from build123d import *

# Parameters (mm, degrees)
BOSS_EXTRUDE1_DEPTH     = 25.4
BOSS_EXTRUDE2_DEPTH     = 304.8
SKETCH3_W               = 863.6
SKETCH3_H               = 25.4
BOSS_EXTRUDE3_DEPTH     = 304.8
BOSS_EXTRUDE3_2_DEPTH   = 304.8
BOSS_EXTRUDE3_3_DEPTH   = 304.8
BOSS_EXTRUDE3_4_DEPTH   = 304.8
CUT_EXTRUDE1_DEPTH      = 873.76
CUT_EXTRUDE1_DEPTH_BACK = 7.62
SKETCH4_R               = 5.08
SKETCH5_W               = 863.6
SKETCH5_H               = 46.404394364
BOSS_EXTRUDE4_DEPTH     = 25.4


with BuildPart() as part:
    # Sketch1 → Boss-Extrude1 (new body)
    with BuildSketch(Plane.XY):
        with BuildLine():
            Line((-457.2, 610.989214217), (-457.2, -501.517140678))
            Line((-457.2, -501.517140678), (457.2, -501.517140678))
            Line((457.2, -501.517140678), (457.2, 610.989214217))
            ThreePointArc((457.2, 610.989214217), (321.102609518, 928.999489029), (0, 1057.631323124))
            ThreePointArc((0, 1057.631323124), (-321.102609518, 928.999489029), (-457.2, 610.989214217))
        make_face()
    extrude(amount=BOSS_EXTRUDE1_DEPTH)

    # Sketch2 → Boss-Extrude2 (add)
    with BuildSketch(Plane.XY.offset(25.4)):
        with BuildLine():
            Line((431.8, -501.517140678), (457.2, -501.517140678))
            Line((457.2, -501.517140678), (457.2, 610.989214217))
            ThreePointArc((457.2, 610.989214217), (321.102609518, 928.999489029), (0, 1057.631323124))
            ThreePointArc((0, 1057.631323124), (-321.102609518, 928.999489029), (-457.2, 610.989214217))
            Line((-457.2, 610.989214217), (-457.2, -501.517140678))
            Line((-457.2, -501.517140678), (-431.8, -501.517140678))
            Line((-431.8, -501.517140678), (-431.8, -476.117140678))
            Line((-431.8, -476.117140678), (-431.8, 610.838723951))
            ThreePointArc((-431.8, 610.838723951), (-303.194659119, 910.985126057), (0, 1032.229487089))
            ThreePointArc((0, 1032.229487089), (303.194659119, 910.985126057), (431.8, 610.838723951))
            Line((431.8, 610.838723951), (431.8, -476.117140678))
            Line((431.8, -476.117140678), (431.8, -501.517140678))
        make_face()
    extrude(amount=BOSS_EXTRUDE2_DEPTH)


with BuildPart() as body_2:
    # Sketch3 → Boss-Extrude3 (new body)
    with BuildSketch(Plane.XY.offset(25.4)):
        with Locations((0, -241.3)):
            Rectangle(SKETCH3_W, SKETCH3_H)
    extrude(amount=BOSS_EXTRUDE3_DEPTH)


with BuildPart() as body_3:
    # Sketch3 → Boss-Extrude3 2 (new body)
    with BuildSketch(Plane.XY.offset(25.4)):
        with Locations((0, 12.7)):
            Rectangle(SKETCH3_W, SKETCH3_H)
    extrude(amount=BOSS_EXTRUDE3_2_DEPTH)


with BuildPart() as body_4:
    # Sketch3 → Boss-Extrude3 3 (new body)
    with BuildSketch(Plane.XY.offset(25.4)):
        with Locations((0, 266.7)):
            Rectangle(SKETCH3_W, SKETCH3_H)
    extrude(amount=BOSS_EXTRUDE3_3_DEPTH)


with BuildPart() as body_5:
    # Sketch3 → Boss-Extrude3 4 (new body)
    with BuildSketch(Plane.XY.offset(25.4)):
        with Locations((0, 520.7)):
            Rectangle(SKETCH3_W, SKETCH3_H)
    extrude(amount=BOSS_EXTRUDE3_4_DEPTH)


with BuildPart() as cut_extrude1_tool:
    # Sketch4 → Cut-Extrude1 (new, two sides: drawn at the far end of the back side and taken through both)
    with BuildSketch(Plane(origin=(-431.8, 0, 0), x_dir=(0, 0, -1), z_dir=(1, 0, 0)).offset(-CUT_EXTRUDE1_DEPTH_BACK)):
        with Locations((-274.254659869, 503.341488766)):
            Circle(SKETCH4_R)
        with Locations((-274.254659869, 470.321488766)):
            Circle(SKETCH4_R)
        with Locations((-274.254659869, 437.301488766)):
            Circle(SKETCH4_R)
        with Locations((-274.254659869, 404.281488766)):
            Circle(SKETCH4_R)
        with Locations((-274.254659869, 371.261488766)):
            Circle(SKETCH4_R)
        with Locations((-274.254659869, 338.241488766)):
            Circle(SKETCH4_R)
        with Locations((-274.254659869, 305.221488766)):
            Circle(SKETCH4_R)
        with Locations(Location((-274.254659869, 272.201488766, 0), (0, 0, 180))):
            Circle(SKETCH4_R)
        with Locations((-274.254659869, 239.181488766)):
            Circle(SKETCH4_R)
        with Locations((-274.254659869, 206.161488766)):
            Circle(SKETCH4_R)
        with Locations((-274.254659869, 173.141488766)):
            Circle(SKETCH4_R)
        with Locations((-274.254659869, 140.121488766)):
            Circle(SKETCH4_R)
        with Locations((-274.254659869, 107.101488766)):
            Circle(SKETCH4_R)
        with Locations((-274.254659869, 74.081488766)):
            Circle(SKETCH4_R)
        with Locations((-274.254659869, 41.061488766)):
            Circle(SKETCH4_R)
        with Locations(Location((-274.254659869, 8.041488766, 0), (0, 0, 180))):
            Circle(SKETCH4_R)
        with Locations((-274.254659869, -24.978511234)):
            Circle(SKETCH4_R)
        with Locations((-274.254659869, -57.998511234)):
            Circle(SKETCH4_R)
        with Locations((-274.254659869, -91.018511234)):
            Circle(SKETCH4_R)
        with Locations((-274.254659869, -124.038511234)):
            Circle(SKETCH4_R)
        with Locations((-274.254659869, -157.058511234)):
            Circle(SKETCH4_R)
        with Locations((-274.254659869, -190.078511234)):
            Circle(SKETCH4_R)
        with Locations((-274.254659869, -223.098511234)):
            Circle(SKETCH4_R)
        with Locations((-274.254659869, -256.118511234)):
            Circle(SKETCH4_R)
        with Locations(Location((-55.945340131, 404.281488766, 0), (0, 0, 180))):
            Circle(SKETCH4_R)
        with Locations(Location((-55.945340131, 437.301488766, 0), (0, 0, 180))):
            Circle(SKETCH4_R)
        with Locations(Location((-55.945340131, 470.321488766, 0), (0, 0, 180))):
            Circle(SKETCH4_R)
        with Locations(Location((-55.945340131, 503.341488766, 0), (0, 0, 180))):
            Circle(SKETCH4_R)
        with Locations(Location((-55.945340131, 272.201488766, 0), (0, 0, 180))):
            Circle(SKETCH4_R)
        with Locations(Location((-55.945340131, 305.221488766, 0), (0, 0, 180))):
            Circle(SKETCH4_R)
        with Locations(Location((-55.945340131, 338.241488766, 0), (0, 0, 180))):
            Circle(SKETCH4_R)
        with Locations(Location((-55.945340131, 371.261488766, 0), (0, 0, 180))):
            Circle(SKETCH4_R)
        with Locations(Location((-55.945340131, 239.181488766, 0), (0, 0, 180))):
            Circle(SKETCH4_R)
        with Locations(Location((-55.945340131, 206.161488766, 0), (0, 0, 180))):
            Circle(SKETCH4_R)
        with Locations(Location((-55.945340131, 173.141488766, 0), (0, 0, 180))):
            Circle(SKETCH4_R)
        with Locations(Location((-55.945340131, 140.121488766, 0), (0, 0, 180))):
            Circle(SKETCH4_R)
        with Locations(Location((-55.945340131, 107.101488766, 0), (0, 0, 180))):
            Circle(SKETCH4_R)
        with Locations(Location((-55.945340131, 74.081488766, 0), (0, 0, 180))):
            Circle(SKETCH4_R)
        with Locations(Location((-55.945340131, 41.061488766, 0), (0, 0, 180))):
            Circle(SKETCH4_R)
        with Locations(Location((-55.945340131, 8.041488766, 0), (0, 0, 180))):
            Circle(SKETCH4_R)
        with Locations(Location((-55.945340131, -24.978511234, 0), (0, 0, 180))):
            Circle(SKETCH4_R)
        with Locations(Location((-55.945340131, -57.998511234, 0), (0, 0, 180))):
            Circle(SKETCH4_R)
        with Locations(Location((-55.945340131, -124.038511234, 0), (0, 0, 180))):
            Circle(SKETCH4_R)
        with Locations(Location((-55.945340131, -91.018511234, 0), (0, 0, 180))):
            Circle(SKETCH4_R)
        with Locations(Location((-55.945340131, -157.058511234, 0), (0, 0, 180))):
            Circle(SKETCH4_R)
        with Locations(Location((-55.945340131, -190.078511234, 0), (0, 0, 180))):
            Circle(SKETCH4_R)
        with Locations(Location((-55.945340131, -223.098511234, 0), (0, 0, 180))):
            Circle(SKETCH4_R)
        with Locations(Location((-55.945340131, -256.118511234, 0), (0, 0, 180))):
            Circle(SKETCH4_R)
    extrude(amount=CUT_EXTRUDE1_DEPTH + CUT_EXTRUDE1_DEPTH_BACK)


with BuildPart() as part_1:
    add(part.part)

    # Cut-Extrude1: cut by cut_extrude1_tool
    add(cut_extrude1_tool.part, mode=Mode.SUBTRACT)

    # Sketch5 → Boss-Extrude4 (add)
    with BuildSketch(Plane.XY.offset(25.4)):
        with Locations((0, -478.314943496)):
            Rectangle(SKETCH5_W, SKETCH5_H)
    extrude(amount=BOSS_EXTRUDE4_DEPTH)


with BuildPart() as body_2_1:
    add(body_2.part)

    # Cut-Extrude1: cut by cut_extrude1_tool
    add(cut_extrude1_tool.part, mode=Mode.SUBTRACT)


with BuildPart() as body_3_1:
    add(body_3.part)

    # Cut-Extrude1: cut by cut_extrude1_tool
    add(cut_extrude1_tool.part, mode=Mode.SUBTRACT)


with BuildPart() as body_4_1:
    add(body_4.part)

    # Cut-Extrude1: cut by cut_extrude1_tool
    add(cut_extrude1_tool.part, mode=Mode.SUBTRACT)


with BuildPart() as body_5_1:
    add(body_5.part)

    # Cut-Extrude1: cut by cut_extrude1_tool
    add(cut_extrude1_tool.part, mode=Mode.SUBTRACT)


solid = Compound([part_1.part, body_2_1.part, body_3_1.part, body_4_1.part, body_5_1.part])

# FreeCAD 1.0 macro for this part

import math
import FreeCAD as App
import Part
import Sketcher
from FreeCAD import Vector
Q = App.Units.Quantity


def add_polygon(sketch, points):
    """Adds a closed chain of lines whose ends are joined by coincident constraints."""
    first, n = sketch.GeometryCount, len(points)
    for a, b in zip(points, points[1:] + points[:1]):
        sketch.addGeometry(Part.LineSegment(App.Vector(*a, 0), App.Vector(*b, 0)), False)
    for i in range(n):
        sketch.addConstraint(Sketcher.Constraint("Coincident", first + i, 2, first + (i + 1) % n, 1))

doc = App.newDocument("Part")
body = doc.addObject("PartDesign::Body", "Body")

sketch1 = body.newObject("Sketcher::SketchObject", "Sketch")
sketch1.AttachmentSupport = (doc.getObject("XY_Plane"), [""])
sketch1.MapMode = "FlatFace"
sketch1.addGeometry(Part.LineSegment(Vector(-457, 611, 0), Vector(-457, -502, 0)), False)
sketch1.addGeometry(Part.LineSegment(Vector(-457, -502, 0), Vector(457, -502, 0)), False)
sketch1.addGeometry(Part.LineSegment(Vector(457, -502, 0), Vector(457, 611, 0)), False)
sketch1.addGeometry(Part.ArcOfCircle(Part.Circle(Vector(5, 606, 0), Vector(0, 0, 1), 452), math.radians(1), math.radians(91)), False)
sketch1.addGeometry(Part.ArcOfCircle(Part.Circle(Vector(-5, 606, 0), Vector(0, 0, 1), 452), math.radians(89), math.radians(179)), False)
sketch1.addConstraint(Sketcher.Constraint("Coincident", 0, 2, 1, 1))
sketch1.addConstraint(Sketcher.Constraint("Coincident", 1, 2, 2, 1))
sketch1.addConstraint(Sketcher.Constraint("Coincident", 2, 2, 3, 1))
sketch1.addConstraint(Sketcher.Constraint("Coincident", 3, 2, 4, 1))
sketch1.addConstraint(Sketcher.Constraint("Coincident", 4, 2, 0, 1))
sketch1.addConstraint(Sketcher.Constraint("Vertical", 0))
sketch1.addConstraint(Sketcher.Constraint("Horizontal", 1))
sketch1.addConstraint(Sketcher.Constraint("Vertical", 2))
sketch1.addConstraint(Sketcher.Constraint("Equal", 3, 4))
sketch1.addConstraint(Sketcher.Constraint("Symmetric", 3, 3, 4, 3, -2))
sketch1.addConstraint(Sketcher.Constraint("Horizontal", 2, 2, 4, 2))
sketch1.addConstraint(Sketcher.Constraint("DistanceX", 1, 1, 1, 2, Q("36 in")))
sketch1.addConstraint(Sketcher.Constraint("Radius", 3, 451.951885))
sketch1.addConstraint(Sketcher.Constraint("DistanceY", 0, 2, 0, 1, 1112.506355))
sketch1.addConstraint(Sketcher.Constraint("DistanceY", -1, 1, 3, 3, 605.710269))
sketch1.addConstraint(Sketcher.Constraint("DistanceY", 0, 2, -1, 1, 501.517141))
pad1 = body.newObject("PartDesign::Pad", "Pad")
pad1.Profile = sketch1
pad1.Length = Q("1 in")

sketch2 = body.newObject("Sketcher::SketchObject", "Sketch001")
sketch2.AttachmentSupport = (doc.getObject("XY_Plane"), [""])
sketch2.MapMode = "FlatFace"
sketch2.AttachmentOffset = App.Placement(Vector(0, 0, 1 * 25.4), App.Rotation())
sketch2.addGeometry(Part.LineSegment(Vector(432, -502, 0), Vector(457, -502, 0)), False)
sketch2.addGeometry(Part.LineSegment(Vector(457, -502, 0), Vector(457, 611, 0)), False)
sketch2.addGeometry(Part.ArcOfCircle(Part.Circle(Vector(5, 606, 0), Vector(0, 0, 1), 452), math.radians(1), math.radians(91)), False)
sketch2.addGeometry(Part.ArcOfCircle(Part.Circle(Vector(-5, 606, 0), Vector(0, 0, 1), 452), math.radians(89), math.radians(179)), False)
sketch2.addGeometry(Part.LineSegment(Vector(-457, 611, 0), Vector(-457, -502, 0)), False)
sketch2.addGeometry(Part.LineSegment(Vector(-457, -502, 0), Vector(-432, -502, 0)), False)
sketch2.addGeometry(Part.LineSegment(Vector(-432, -502, 0), Vector(-432, 611, 0)), False)
sketch2.addGeometry(Part.ArcOfCircle(Part.Circle(Vector(-5, 606, 0), Vector(0, 0, 1), 427), math.radians(89), math.radians(179)), False)
sketch2.addGeometry(Part.ArcOfCircle(Part.Circle(Vector(5, 606, 0), Vector(0, 0, 1), 427), math.radians(1), math.radians(91)), False)
sketch2.addGeometry(Part.LineSegment(Vector(432, 611, 0), Vector(432, -502, 0)), False)
sketch2.addConstraint(Sketcher.Constraint("Coincident", 0, 2, 1, 1))
sketch2.addConstraint(Sketcher.Constraint("Coincident", 1, 2, 2, 1))
sketch2.addConstraint(Sketcher.Constraint("Coincident", 2, 2, 3, 1))
sketch2.addConstraint(Sketcher.Constraint("Coincident", 3, 2, 4, 1))
sketch2.addConstraint(Sketcher.Constraint("Coincident", 4, 2, 5, 1))
sketch2.addConstraint(Sketcher.Constraint("Coincident", 5, 2, 6, 1))
sketch2.addConstraint(Sketcher.Constraint("Coincident", 6, 2, 7, 2))
sketch2.addConstraint(Sketcher.Constraint("Coincident", 7, 1, 8, 2))
sketch2.addConstraint(Sketcher.Constraint("Coincident", 8, 1, 9, 1))
sketch2.addConstraint(Sketcher.Constraint("Coincident", 9, 2, 0, 1))
sketch2.addConstraint(Sketcher.Constraint("Horizontal", 0))
sketch2.addConstraint(Sketcher.Constraint("Vertical", 1))
sketch2.addConstraint(Sketcher.Constraint("Vertical", 4))
sketch2.addConstraint(Sketcher.Constraint("Horizontal", 5))
sketch2.addConstraint(Sketcher.Constraint("Vertical", 6))
sketch2.addConstraint(Sketcher.Constraint("Vertical", 9))
sketch2.addConstraint(Sketcher.Constraint("Coincident", 7, 3, 3, 3))
sketch2.addConstraint(Sketcher.Constraint("Coincident", 8, 3, 2, 3))
sketch2.addConstraint(Sketcher.Constraint("Equal", 2, 3))
sketch2.addConstraint(Sketcher.Constraint("Equal", 7, 8))
sketch2.addConstraint(Sketcher.Constraint("Symmetric", 2, 3, 3, 3, -2))
sketch2.addConstraint(Sketcher.Constraint("Symmetric", 0, 2, 4, 2, -2))
sketch2.addConstraint(Sketcher.Constraint("Horizontal", 6, 2, 8, 1))
sketch2.addConstraint(Sketcher.Constraint("DistanceX", 0, 1, 0, 2, Q("1 in")))
sketch2.addConstraint(Sketcher.Constraint("DistanceX", -1, 1, 0, 2, Q("18 in")))
sketch2.addConstraint(Sketcher.Constraint("Radius", 2, 451.951885))
sketch2.addConstraint(Sketcher.Constraint("Radius", 7, 426.551885))
sketch2.addConstraint(Sketcher.Constraint("DistanceY", 1, 1, 1, 2, 1112.506355))
sketch2.addConstraint(Sketcher.Constraint("DistanceY", 6, 1, 6, 2, 1112.355865))
sketch2.addConstraint(Sketcher.Constraint("DistanceY", -1, 1, 2, 3, 605.710269))
pad2 = body.newObject("PartDesign::Pad", "Pad001")
pad2.Profile = sketch2
pad2.Length = Q("12 in")
body2 = doc.addObject("PartDesign::Body", "Body001")

sketch3 = body2.newObject("Sketcher::SketchObject", "Sketch002")
sketch3.AttachmentSupport = (doc.getObject("XY_Plane001"), [""])
sketch3.MapMode = "FlatFace"
sketch3.AttachmentOffset = App.Placement(Vector(0, 0, 1 * 25.4), App.Rotation())
add_polygon(sketch3, [(-432, -229), (-432, -254), (432, -254), (432, -229)])
sketch3.addConstraint(Sketcher.Constraint("Vertical", 0))
sketch3.addConstraint(Sketcher.Constraint("Horizontal", 1))
sketch3.addConstraint(Sketcher.Constraint("Vertical", 2))
sketch3.addConstraint(Sketcher.Constraint("Horizontal", 3))
sketch3.addConstraint(Sketcher.Constraint("DistanceX", 1, 1, 1, 2, Q("34 in")))
sketch3.addConstraint(Sketcher.Constraint("DistanceY", 0, 2, 0, 1, Q("1 in")))
sketch3.addConstraint(Sketcher.Constraint("DistanceX", 0, 2, -1, 1, Q("17 in")))
sketch3.addConstraint(Sketcher.Constraint("DistanceY", 0, 2, -1, 1, Q("10 in")))
pad3 = body2.newObject("PartDesign::Pad", "Pad002")
pad3.Profile = sketch3
pad3.Length = Q("12 in")
body3 = doc.addObject("PartDesign::Body", "Body002")

sketch4 = body3.newObject("Sketcher::SketchObject", "Sketch003")
sketch4.AttachmentSupport = (doc.getObject("XY_Plane002"), [""])
sketch4.MapMode = "FlatFace"
sketch4.AttachmentOffset = App.Placement(Vector(0, 0, 1 * 25.4), App.Rotation())
add_polygon(sketch4, [(-432, 25), (-432, 0), (432, 0), (432, 25)])
sketch4.addConstraint(Sketcher.Constraint("Vertical", 0))
sketch4.addConstraint(Sketcher.Constraint("Horizontal", 1))
sketch4.addConstraint(Sketcher.Constraint("Vertical", 2))
sketch4.addConstraint(Sketcher.Constraint("Horizontal", 3))
sketch4.addConstraint(Sketcher.Constraint("Symmetric", 0, 2, 1, 2, -1, 1))
sketch4.addConstraint(Sketcher.Constraint("DistanceX", 1, 1, 1, 2, Q("34 in")))
sketch4.addConstraint(Sketcher.Constraint("DistanceY", 0, 2, 0, 1, Q("1 in")))
pad4 = body3.newObject("PartDesign::Pad", "Pad003")
pad4.Profile = sketch4
pad4.Length = Q("12 in")
body4 = doc.addObject("PartDesign::Body", "Body003")

sketch5 = body4.newObject("Sketcher::SketchObject", "Sketch004")
sketch5.AttachmentSupport = (doc.getObject("XY_Plane003"), [""])
sketch5.MapMode = "FlatFace"
sketch5.AttachmentOffset = App.Placement(Vector(0, 0, 1 * 25.4), App.Rotation())
add_polygon(sketch5, [(-432, 279), (-432, 254), (432, 254), (432, 279)])
sketch5.addConstraint(Sketcher.Constraint("Vertical", 0))
sketch5.addConstraint(Sketcher.Constraint("Horizontal", 1))
sketch5.addConstraint(Sketcher.Constraint("Vertical", 2))
sketch5.addConstraint(Sketcher.Constraint("Horizontal", 3))
sketch5.addConstraint(Sketcher.Constraint("DistanceX", 1, 1, 1, 2, Q("34 in")))
sketch5.addConstraint(Sketcher.Constraint("DistanceY", 0, 2, 0, 1, Q("1 in")))
sketch5.addConstraint(Sketcher.Constraint("DistanceX", 0, 2, -1, 1, Q("17 in")))
sketch5.addConstraint(Sketcher.Constraint("DistanceY", -1, 1, 0, 2, Q("10 in")))
pad5 = body4.newObject("PartDesign::Pad", "Pad004")
pad5.Profile = sketch5
pad5.Length = Q("12 in")
body5 = doc.addObject("PartDesign::Body", "Body004")

sketch6 = body5.newObject("Sketcher::SketchObject", "Sketch005")
sketch6.AttachmentSupport = (doc.getObject("XY_Plane004"), [""])
sketch6.MapMode = "FlatFace"
sketch6.AttachmentOffset = App.Placement(Vector(0, 0, 1 * 25.4), App.Rotation())
add_polygon(sketch6, [(-432, 533), (-432, 508), (432, 508), (432, 533)])
sketch6.addConstraint(Sketcher.Constraint("Vertical", 0))
sketch6.addConstraint(Sketcher.Constraint("Horizontal", 1))
sketch6.addConstraint(Sketcher.Constraint("Vertical", 2))
sketch6.addConstraint(Sketcher.Constraint("Horizontal", 3))
sketch6.addConstraint(Sketcher.Constraint("DistanceX", 1, 1, 1, 2, Q("34 in")))
sketch6.addConstraint(Sketcher.Constraint("DistanceY", 0, 2, 0, 1, Q("1 in")))
sketch6.addConstraint(Sketcher.Constraint("DistanceX", 0, 2, -1, 1, Q("17 in")))
sketch6.addConstraint(Sketcher.Constraint("DistanceY", -1, 1, 0, 2, Q("20 in")))
pad6 = body5.newObject("PartDesign::Pad", "Pad005")
pad6.Profile = sketch6
pad6.Length = Q("12 in")
body6 = doc.addObject("PartDesign::Body", "Body005")
body6.AllowCompound = True

sketch7 = body6.newObject("Sketcher::SketchObject", "Sketch006")
sketch7.AttachmentSupport = (doc.getObject("YZ_Plane005"), [""])
sketch7.MapMode = "FlatFace"
sketch7.AttachmentOffset = App.Placement(Vector(0, 0, -17 * 25.4), App.Rotation())
sketch7.addGeometry(Part.Circle(Vector(503, 274, 0), Vector(0, 0, 1), 5), False)
sketch7.addGeometry(Part.Circle(Vector(470, 274, 0), Vector(0, 0, 1), 5), False)
sketch7.addGeometry(Part.Circle(Vector(437, 274, 0), Vector(0, 0, 1), 5), False)
sketch7.addGeometry(Part.Circle(Vector(404, 274, 0), Vector(0, 0, 1), 5), False)
sketch7.addGeometry(Part.Circle(Vector(371, 274, 0), Vector(0, 0, 1), 5), False)
sketch7.addGeometry(Part.Circle(Vector(338, 274, 0), Vector(0, 0, 1), 5), False)
sketch7.addGeometry(Part.Circle(Vector(305, 274, 0), Vector(0, 0, 1), 5), False)
sketch7.addGeometry(Part.Circle(Vector(272, 274, 0), Vector(0, 0, 1), 5), False)
sketch7.addGeometry(Part.Circle(Vector(239, 274, 0), Vector(0, 0, 1), 5), False)
sketch7.addGeometry(Part.Circle(Vector(206, 274, 0), Vector(0, 0, 1), 5), False)
sketch7.addGeometry(Part.Circle(Vector(173, 274, 0), Vector(0, 0, 1), 5), False)
sketch7.addGeometry(Part.Circle(Vector(140, 274, 0), Vector(0, 0, 1), 5), False)
sketch7.addGeometry(Part.Circle(Vector(107, 274, 0), Vector(0, 0, 1), 5), False)
sketch7.addGeometry(Part.Circle(Vector(74, 274, 0), Vector(0, 0, 1), 5), False)
sketch7.addGeometry(Part.Circle(Vector(41, 274, 0), Vector(0, 0, 1), 5), False)
sketch7.addGeometry(Part.Circle(Vector(8, 274, 0), Vector(0, 0, 1), 5), False)
sketch7.addGeometry(Part.Circle(Vector(-25, 274, 0), Vector(0, 0, 1), 5), False)
sketch7.addGeometry(Part.Circle(Vector(-58, 274, 0), Vector(0, 0, 1), 5), False)
sketch7.addGeometry(Part.Circle(Vector(-91, 274, 0), Vector(0, 0, 1), 5), False)
sketch7.addGeometry(Part.Circle(Vector(-124, 274, 0), Vector(0, 0, 1), 5), False)
sketch7.addGeometry(Part.Circle(Vector(-157, 274, 0), Vector(0, 0, 1), 5), False)
sketch7.addGeometry(Part.Circle(Vector(-190, 274, 0), Vector(0, 0, 1), 5), False)
sketch7.addGeometry(Part.Circle(Vector(-223, 274, 0), Vector(0, 0, 1), 5), False)
sketch7.addGeometry(Part.Circle(Vector(-256, 274, 0), Vector(0, 0, 1), 5), False)
sketch7.addGeometry(Part.Circle(Vector(404, 56, 0), Vector(0, 0, 1), 5), False)
sketch7.addGeometry(Part.Circle(Vector(437, 56, 0), Vector(0, 0, 1), 5), False)
sketch7.addGeometry(Part.Circle(Vector(470, 56, 0), Vector(0, 0, 1), 5), False)
sketch7.addGeometry(Part.Circle(Vector(503, 56, 0), Vector(0, 0, 1), 5), False)
sketch7.addGeometry(Part.Circle(Vector(272, 56, 0), Vector(0, 0, 1), 5), False)
sketch7.addGeometry(Part.Circle(Vector(305, 56, 0), Vector(0, 0, 1), 5), False)
sketch7.addGeometry(Part.Circle(Vector(338, 56, 0), Vector(0, 0, 1), 5), False)
sketch7.addGeometry(Part.Circle(Vector(371, 56, 0), Vector(0, 0, 1), 5), False)
sketch7.addGeometry(Part.Circle(Vector(239, 56, 0), Vector(0, 0, 1), 5), False)
sketch7.addGeometry(Part.Circle(Vector(206, 56, 0), Vector(0, 0, 1), 5), False)
sketch7.addGeometry(Part.Circle(Vector(173, 56, 0), Vector(0, 0, 1), 5), False)
sketch7.addGeometry(Part.Circle(Vector(140, 56, 0), Vector(0, 0, 1), 5), False)
sketch7.addGeometry(Part.Circle(Vector(107, 56, 0), Vector(0, 0, 1), 5), False)
sketch7.addGeometry(Part.Circle(Vector(74, 56, 0), Vector(0, 0, 1), 5), False)
sketch7.addGeometry(Part.Circle(Vector(41, 56, 0), Vector(0, 0, 1), 5), False)
sketch7.addGeometry(Part.Circle(Vector(8, 56, 0), Vector(0, 0, 1), 5), False)
sketch7.addGeometry(Part.Circle(Vector(-25, 56, 0), Vector(0, 0, 1), 5), False)
sketch7.addGeometry(Part.Circle(Vector(-58, 56, 0), Vector(0, 0, 1), 5), False)
sketch7.addGeometry(Part.Circle(Vector(-124, 56, 0), Vector(0, 0, 1), 5), False)
sketch7.addGeometry(Part.Circle(Vector(-91, 56, 0), Vector(0, 0, 1), 5), False)
sketch7.addGeometry(Part.Circle(Vector(-157, 56, 0), Vector(0, 0, 1), 5), False)
sketch7.addGeometry(Part.Circle(Vector(-190, 56, 0), Vector(0, 0, 1), 5), False)
sketch7.addGeometry(Part.Circle(Vector(-223, 56, 0), Vector(0, 0, 1), 5), False)
sketch7.addGeometry(Part.Circle(Vector(-256, 56, 0), Vector(0, 0, 1), 5), False)
sketch7.addConstraint(Sketcher.Constraint("Equal", 0, 1))
sketch7.addConstraint(Sketcher.Constraint("Equal", 1, 2))
sketch7.addConstraint(Sketcher.Constraint("Equal", 2, 3))
sketch7.addConstraint(Sketcher.Constraint("Equal", 3, 4))
sketch7.addConstraint(Sketcher.Constraint("Equal", 4, 5))
sketch7.addConstraint(Sketcher.Constraint("Equal", 5, 6))
sketch7.addConstraint(Sketcher.Constraint("Equal", 6, 7))
sketch7.addConstraint(Sketcher.Constraint("Equal", 7, 8))
sketch7.addConstraint(Sketcher.Constraint("Equal", 8, 9))
sketch7.addConstraint(Sketcher.Constraint("Equal", 9, 10))
sketch7.addConstraint(Sketcher.Constraint("Equal", 10, 11))
sketch7.addConstraint(Sketcher.Constraint("Equal", 11, 12))
sketch7.addConstraint(Sketcher.Constraint("Equal", 12, 13))
sketch7.addConstraint(Sketcher.Constraint("Equal", 13, 14))
sketch7.addConstraint(Sketcher.Constraint("Equal", 14, 15))
sketch7.addConstraint(Sketcher.Constraint("Equal", 15, 16))
sketch7.addConstraint(Sketcher.Constraint("Equal", 16, 17))
sketch7.addConstraint(Sketcher.Constraint("Equal", 17, 18))
sketch7.addConstraint(Sketcher.Constraint("Equal", 18, 19))
sketch7.addConstraint(Sketcher.Constraint("Equal", 19, 20))
sketch7.addConstraint(Sketcher.Constraint("Equal", 20, 21))
sketch7.addConstraint(Sketcher.Constraint("Equal", 21, 22))
sketch7.addConstraint(Sketcher.Constraint("Equal", 22, 23))
sketch7.addConstraint(Sketcher.Constraint("Equal", 23, 24))
sketch7.addConstraint(Sketcher.Constraint("Equal", 24, 25))
sketch7.addConstraint(Sketcher.Constraint("Equal", 25, 26))
sketch7.addConstraint(Sketcher.Constraint("Equal", 26, 27))
sketch7.addConstraint(Sketcher.Constraint("Equal", 27, 28))
sketch7.addConstraint(Sketcher.Constraint("Equal", 28, 29))
sketch7.addConstraint(Sketcher.Constraint("Equal", 29, 30))
sketch7.addConstraint(Sketcher.Constraint("Equal", 30, 31))
sketch7.addConstraint(Sketcher.Constraint("Equal", 31, 32))
sketch7.addConstraint(Sketcher.Constraint("Equal", 32, 33))
sketch7.addConstraint(Sketcher.Constraint("Equal", 33, 34))
sketch7.addConstraint(Sketcher.Constraint("Equal", 34, 35))
sketch7.addConstraint(Sketcher.Constraint("Equal", 35, 36))
sketch7.addConstraint(Sketcher.Constraint("Equal", 36, 37))
sketch7.addConstraint(Sketcher.Constraint("Equal", 37, 38))
sketch7.addConstraint(Sketcher.Constraint("Equal", 38, 39))
sketch7.addConstraint(Sketcher.Constraint("Equal", 39, 40))
sketch7.addConstraint(Sketcher.Constraint("Equal", 40, 41))
sketch7.addConstraint(Sketcher.Constraint("Equal", 41, 42))
sketch7.addConstraint(Sketcher.Constraint("Equal", 42, 43))
sketch7.addConstraint(Sketcher.Constraint("Equal", 43, 44))
sketch7.addConstraint(Sketcher.Constraint("Equal", 44, 45))
sketch7.addConstraint(Sketcher.Constraint("Equal", 45, 46))
sketch7.addConstraint(Sketcher.Constraint("Equal", 46, 47))
sketch7.addConstraint(Sketcher.Constraint("Horizontal", 0, 3, 1, 3))
sketch7.addConstraint(Sketcher.Constraint("Horizontal", 1, 3, 2, 3))
sketch7.addConstraint(Sketcher.Constraint("Horizontal", 2, 3, 3, 3))
sketch7.addConstraint(Sketcher.Constraint("Horizontal", 3, 3, 4, 3))
sketch7.addConstraint(Sketcher.Constraint("Horizontal", 4, 3, 5, 3))
sketch7.addConstraint(Sketcher.Constraint("Horizontal", 5, 3, 6, 3))
sketch7.addConstraint(Sketcher.Constraint("Horizontal", 6, 3, 7, 3))
sketch7.addConstraint(Sketcher.Constraint("Horizontal", 7, 3, 8, 3))
sketch7.addConstraint(Sketcher.Constraint("Horizontal", 8, 3, 9, 3))
sketch7.addConstraint(Sketcher.Constraint("Horizontal", 9, 3, 10, 3))
sketch7.addConstraint(Sketcher.Constraint("Horizontal", 10, 3, 11, 3))
sketch7.addConstraint(Sketcher.Constraint("Horizontal", 11, 3, 12, 3))
sketch7.addConstraint(Sketcher.Constraint("Horizontal", 12, 3, 13, 3))
sketch7.addConstraint(Sketcher.Constraint("Horizontal", 13, 3, 14, 3))
sketch7.addConstraint(Sketcher.Constraint("Horizontal", 14, 3, 15, 3))
sketch7.addConstraint(Sketcher.Constraint("Horizontal", 15, 3, 16, 3))
sketch7.addConstraint(Sketcher.Constraint("Horizontal", 16, 3, 17, 3))
sketch7.addConstraint(Sketcher.Constraint("Horizontal", 17, 3, 18, 3))
sketch7.addConstraint(Sketcher.Constraint("Horizontal", 18, 3, 19, 3))
sketch7.addConstraint(Sketcher.Constraint("Horizontal", 19, 3, 20, 3))
sketch7.addConstraint(Sketcher.Constraint("Horizontal", 20, 3, 21, 3))
sketch7.addConstraint(Sketcher.Constraint("Horizontal", 21, 3, 22, 3))
sketch7.addConstraint(Sketcher.Constraint("Horizontal", 22, 3, 23, 3))
sketch7.addConstraint(Sketcher.Constraint("Horizontal", 24, 3, 25, 3))
sketch7.addConstraint(Sketcher.Constraint("Horizontal", 25, 3, 26, 3))
sketch7.addConstraint(Sketcher.Constraint("Horizontal", 26, 3, 27, 3))
sketch7.addConstraint(Sketcher.Constraint("Horizontal", 27, 3, 28, 3))
sketch7.addConstraint(Sketcher.Constraint("Horizontal", 28, 3, 29, 3))
sketch7.addConstraint(Sketcher.Constraint("Horizontal", 29, 3, 30, 3))
sketch7.addConstraint(Sketcher.Constraint("Horizontal", 30, 3, 31, 3))
sketch7.addConstraint(Sketcher.Constraint("Horizontal", 31, 3, 32, 3))
sketch7.addConstraint(Sketcher.Constraint("Horizontal", 32, 3, 33, 3))
sketch7.addConstraint(Sketcher.Constraint("Horizontal", 33, 3, 34, 3))
sketch7.addConstraint(Sketcher.Constraint("Horizontal", 34, 3, 35, 3))
sketch7.addConstraint(Sketcher.Constraint("Horizontal", 35, 3, 36, 3))
sketch7.addConstraint(Sketcher.Constraint("Horizontal", 36, 3, 37, 3))
sketch7.addConstraint(Sketcher.Constraint("Horizontal", 37, 3, 38, 3))
sketch7.addConstraint(Sketcher.Constraint("Horizontal", 38, 3, 39, 3))
sketch7.addConstraint(Sketcher.Constraint("Horizontal", 39, 3, 40, 3))
sketch7.addConstraint(Sketcher.Constraint("Horizontal", 40, 3, 41, 3))
sketch7.addConstraint(Sketcher.Constraint("Horizontal", 41, 3, 42, 3))
sketch7.addConstraint(Sketcher.Constraint("Horizontal", 42, 3, 43, 3))
sketch7.addConstraint(Sketcher.Constraint("Horizontal", 43, 3, 44, 3))
sketch7.addConstraint(Sketcher.Constraint("Horizontal", 44, 3, 45, 3))
sketch7.addConstraint(Sketcher.Constraint("Horizontal", 45, 3, 46, 3))
sketch7.addConstraint(Sketcher.Constraint("Horizontal", 46, 3, 47, 3))
sketch7.addConstraint(Sketcher.Constraint("Vertical", 3, 3, 24, 3))
sketch7.addConstraint(Sketcher.Constraint("Vertical", 2, 3, 25, 3))
sketch7.addConstraint(Sketcher.Constraint("Vertical", 1, 3, 26, 3))
sketch7.addConstraint(Sketcher.Constraint("Vertical", 0, 3, 27, 3))
sketch7.addConstraint(Sketcher.Constraint("Vertical", 7, 3, 28, 3))
sketch7.addConstraint(Sketcher.Constraint("Vertical", 6, 3, 29, 3))
sketch7.addConstraint(Sketcher.Constraint("Vertical", 5, 3, 30, 3))
sketch7.addConstraint(Sketcher.Constraint("Vertical", 4, 3, 31, 3))
sketch7.addConstraint(Sketcher.Constraint("Vertical", 8, 3, 32, 3))
sketch7.addConstraint(Sketcher.Constraint("Vertical", 9, 3, 33, 3))
sketch7.addConstraint(Sketcher.Constraint("Vertical", 10, 3, 34, 3))
sketch7.addConstraint(Sketcher.Constraint("Vertical", 11, 3, 35, 3))
sketch7.addConstraint(Sketcher.Constraint("Vertical", 12, 3, 36, 3))
sketch7.addConstraint(Sketcher.Constraint("Vertical", 13, 3, 37, 3))
sketch7.addConstraint(Sketcher.Constraint("Vertical", 14, 3, 38, 3))
sketch7.addConstraint(Sketcher.Constraint("Vertical", 15, 3, 39, 3))
sketch7.addConstraint(Sketcher.Constraint("Vertical", 16, 3, 40, 3))
sketch7.addConstraint(Sketcher.Constraint("Vertical", 17, 3, 41, 3))
sketch7.addConstraint(Sketcher.Constraint("Vertical", 19, 3, 42, 3))
sketch7.addConstraint(Sketcher.Constraint("Vertical", 18, 3, 43, 3))
sketch7.addConstraint(Sketcher.Constraint("Vertical", 20, 3, 44, 3))
sketch7.addConstraint(Sketcher.Constraint("Vertical", 21, 3, 45, 3))
sketch7.addConstraint(Sketcher.Constraint("Vertical", 22, 3, 46, 3))
sketch7.addConstraint(Sketcher.Constraint("Vertical", 23, 3, 47, 3))
sketch7.addConstraint(Sketcher.Constraint("Diameter", 0, Q("0.4 in")))
sketch7.addConstraint(Sketcher.Constraint("DistanceX", 1, 3, 0, 3, Q("1.3 in")))
sketch7.addConstraint(Sketcher.Constraint("DistanceX", 2, 3, 1, 3, Q("1.3 in")))
sketch7.addConstraint(Sketcher.Constraint("DistanceX", 3, 3, 2, 3, Q("1.3 in")))
sketch7.addConstraint(Sketcher.Constraint("DistanceX", 4, 3, 3, 3, Q("1.3 in")))
sketch7.addConstraint(Sketcher.Constraint("DistanceX", 5, 3, 4, 3, Q("1.3 in")))
sketch7.addConstraint(Sketcher.Constraint("DistanceX", 6, 3, 5, 3, Q("1.3 in")))
sketch7.addConstraint(Sketcher.Constraint("DistanceX", 7, 3, 6, 3, Q("1.3 in")))
sketch7.addConstraint(Sketcher.Constraint("DistanceX", 8, 3, 7, 3, Q("1.3 in")))
sketch7.addConstraint(Sketcher.Constraint("DistanceX", 9, 3, 8, 3, Q("1.3 in")))
sketch7.addConstraint(Sketcher.Constraint("DistanceX", 10, 3, 9, 3, Q("1.3 in")))
sketch7.addConstraint(Sketcher.Constraint("DistanceX", 11, 3, 10, 3, Q("1.3 in")))
sketch7.addConstraint(Sketcher.Constraint("DistanceX", 12, 3, 11, 3, Q("1.3 in")))
sketch7.addConstraint(Sketcher.Constraint("DistanceX", 13, 3, 12, 3, Q("1.3 in")))
sketch7.addConstraint(Sketcher.Constraint("DistanceX", 14, 3, 13, 3, Q("1.3 in")))
sketch7.addConstraint(Sketcher.Constraint("DistanceX", 15, 3, 14, 3, Q("1.3 in")))
sketch7.addConstraint(Sketcher.Constraint("DistanceX", 16, 3, 15, 3, Q("1.3 in")))
sketch7.addConstraint(Sketcher.Constraint("DistanceX", 17, 3, 16, 3, Q("1.3 in")))
sketch7.addConstraint(Sketcher.Constraint("DistanceX", 18, 3, 17, 3, Q("1.3 in")))
sketch7.addConstraint(Sketcher.Constraint("DistanceX", 19, 3, 18, 3, Q("1.3 in")))
sketch7.addConstraint(Sketcher.Constraint("DistanceX", 20, 3, 19, 3, Q("1.3 in")))
sketch7.addConstraint(Sketcher.Constraint("DistanceX", 21, 3, 20, 3, Q("1.3 in")))
sketch7.addConstraint(Sketcher.Constraint("DistanceX", 22, 3, 21, 3, Q("1.3 in")))
sketch7.addConstraint(Sketcher.Constraint("DistanceX", 23, 3, 22, 3, Q("1.3 in")))
sketch7.addConstraint(Sketcher.Constraint("DistanceX", -1, 1, 0, 3, 503.341489))
sketch7.addConstraint(Sketcher.Constraint("DistanceY", -1, 1, 0, 3, 274.25466))
sketch7.addConstraint(Sketcher.Constraint("DistanceY", -1, 1, 24, 3, 55.94534))
pad7 = body6.newObject("PartDesign::Pad", "Pad006")
pad7.Profile = sketch7
pad7.Type = "TwoLengths"
pad7.Length = Q("34.4 in")
pad7.Length2 = Q("0.3 in")
doc.recompute()

body7 = doc.addObject("PartDesign::Body", "Body006")
body7.BaseFeature = body6
boolean = body.newObject("PartDesign::Boolean", "Boolean")
boolean.Type = "Cut"
boolean.addObjects([body7])
doc.recompute()

sketch8 = body.newObject("Sketcher::SketchObject", "Sketch007")
sketch8.AttachmentSupport = (doc.getObject("XY_Plane"), [""])
sketch8.MapMode = "FlatFace"
sketch8.AttachmentOffset = App.Placement(Vector(0, 0, 1 * 25.4), App.Rotation())
add_polygon(sketch8, [(-432, -455), (-432, -502), (432, -502), (432, -455)])
sketch8.addConstraint(Sketcher.Constraint("Vertical", 0))
sketch8.addConstraint(Sketcher.Constraint("Horizontal", 1))
sketch8.addConstraint(Sketcher.Constraint("Vertical", 2))
sketch8.addConstraint(Sketcher.Constraint("Horizontal", 3))
sketch8.addConstraint(Sketcher.Constraint("DistanceX", 1, 1, 1, 2, Q("34 in")))
sketch8.addConstraint(Sketcher.Constraint("DistanceX", 0, 2, -1, 1, Q("17 in")))
sketch8.addConstraint(Sketcher.Constraint("DistanceY", 0, 2, 0, 1, 46.404394))
sketch8.addConstraint(Sketcher.Constraint("DistanceY", 0, 2, -1, 1, 501.517141))
pad8 = body.newObject("PartDesign::Pad", "Pad007")
pad8.Profile = sketch8
pad8.Length = Q("1 in")
doc.recompute()

body8 = doc.addObject("PartDesign::Body", "Body007")
body8.BaseFeature = body6
boolean2 = body2.newObject("PartDesign::Boolean", "Boolean001")
boolean2.Type = "Cut"
boolean2.addObjects([body8])
doc.recompute()

body9 = doc.addObject("PartDesign::Body", "Body008")
body9.BaseFeature = body6
boolean3 = body3.newObject("PartDesign::Boolean", "Boolean002")
boolean3.Type = "Cut"
boolean3.addObjects([body9])
doc.recompute()

body10 = doc.addObject("PartDesign::Body", "Body009")
body10.BaseFeature = body6
boolean4 = body4.newObject("PartDesign::Boolean", "Boolean003")
boolean4.Type = "Cut"
boolean4.addObjects([body10])
doc.recompute()

boolean5 = body5.newObject("PartDesign::Boolean", "Boolean004")
boolean5.Type = "Cut"
boolean5.addObjects([body6])

doc.recompute()
